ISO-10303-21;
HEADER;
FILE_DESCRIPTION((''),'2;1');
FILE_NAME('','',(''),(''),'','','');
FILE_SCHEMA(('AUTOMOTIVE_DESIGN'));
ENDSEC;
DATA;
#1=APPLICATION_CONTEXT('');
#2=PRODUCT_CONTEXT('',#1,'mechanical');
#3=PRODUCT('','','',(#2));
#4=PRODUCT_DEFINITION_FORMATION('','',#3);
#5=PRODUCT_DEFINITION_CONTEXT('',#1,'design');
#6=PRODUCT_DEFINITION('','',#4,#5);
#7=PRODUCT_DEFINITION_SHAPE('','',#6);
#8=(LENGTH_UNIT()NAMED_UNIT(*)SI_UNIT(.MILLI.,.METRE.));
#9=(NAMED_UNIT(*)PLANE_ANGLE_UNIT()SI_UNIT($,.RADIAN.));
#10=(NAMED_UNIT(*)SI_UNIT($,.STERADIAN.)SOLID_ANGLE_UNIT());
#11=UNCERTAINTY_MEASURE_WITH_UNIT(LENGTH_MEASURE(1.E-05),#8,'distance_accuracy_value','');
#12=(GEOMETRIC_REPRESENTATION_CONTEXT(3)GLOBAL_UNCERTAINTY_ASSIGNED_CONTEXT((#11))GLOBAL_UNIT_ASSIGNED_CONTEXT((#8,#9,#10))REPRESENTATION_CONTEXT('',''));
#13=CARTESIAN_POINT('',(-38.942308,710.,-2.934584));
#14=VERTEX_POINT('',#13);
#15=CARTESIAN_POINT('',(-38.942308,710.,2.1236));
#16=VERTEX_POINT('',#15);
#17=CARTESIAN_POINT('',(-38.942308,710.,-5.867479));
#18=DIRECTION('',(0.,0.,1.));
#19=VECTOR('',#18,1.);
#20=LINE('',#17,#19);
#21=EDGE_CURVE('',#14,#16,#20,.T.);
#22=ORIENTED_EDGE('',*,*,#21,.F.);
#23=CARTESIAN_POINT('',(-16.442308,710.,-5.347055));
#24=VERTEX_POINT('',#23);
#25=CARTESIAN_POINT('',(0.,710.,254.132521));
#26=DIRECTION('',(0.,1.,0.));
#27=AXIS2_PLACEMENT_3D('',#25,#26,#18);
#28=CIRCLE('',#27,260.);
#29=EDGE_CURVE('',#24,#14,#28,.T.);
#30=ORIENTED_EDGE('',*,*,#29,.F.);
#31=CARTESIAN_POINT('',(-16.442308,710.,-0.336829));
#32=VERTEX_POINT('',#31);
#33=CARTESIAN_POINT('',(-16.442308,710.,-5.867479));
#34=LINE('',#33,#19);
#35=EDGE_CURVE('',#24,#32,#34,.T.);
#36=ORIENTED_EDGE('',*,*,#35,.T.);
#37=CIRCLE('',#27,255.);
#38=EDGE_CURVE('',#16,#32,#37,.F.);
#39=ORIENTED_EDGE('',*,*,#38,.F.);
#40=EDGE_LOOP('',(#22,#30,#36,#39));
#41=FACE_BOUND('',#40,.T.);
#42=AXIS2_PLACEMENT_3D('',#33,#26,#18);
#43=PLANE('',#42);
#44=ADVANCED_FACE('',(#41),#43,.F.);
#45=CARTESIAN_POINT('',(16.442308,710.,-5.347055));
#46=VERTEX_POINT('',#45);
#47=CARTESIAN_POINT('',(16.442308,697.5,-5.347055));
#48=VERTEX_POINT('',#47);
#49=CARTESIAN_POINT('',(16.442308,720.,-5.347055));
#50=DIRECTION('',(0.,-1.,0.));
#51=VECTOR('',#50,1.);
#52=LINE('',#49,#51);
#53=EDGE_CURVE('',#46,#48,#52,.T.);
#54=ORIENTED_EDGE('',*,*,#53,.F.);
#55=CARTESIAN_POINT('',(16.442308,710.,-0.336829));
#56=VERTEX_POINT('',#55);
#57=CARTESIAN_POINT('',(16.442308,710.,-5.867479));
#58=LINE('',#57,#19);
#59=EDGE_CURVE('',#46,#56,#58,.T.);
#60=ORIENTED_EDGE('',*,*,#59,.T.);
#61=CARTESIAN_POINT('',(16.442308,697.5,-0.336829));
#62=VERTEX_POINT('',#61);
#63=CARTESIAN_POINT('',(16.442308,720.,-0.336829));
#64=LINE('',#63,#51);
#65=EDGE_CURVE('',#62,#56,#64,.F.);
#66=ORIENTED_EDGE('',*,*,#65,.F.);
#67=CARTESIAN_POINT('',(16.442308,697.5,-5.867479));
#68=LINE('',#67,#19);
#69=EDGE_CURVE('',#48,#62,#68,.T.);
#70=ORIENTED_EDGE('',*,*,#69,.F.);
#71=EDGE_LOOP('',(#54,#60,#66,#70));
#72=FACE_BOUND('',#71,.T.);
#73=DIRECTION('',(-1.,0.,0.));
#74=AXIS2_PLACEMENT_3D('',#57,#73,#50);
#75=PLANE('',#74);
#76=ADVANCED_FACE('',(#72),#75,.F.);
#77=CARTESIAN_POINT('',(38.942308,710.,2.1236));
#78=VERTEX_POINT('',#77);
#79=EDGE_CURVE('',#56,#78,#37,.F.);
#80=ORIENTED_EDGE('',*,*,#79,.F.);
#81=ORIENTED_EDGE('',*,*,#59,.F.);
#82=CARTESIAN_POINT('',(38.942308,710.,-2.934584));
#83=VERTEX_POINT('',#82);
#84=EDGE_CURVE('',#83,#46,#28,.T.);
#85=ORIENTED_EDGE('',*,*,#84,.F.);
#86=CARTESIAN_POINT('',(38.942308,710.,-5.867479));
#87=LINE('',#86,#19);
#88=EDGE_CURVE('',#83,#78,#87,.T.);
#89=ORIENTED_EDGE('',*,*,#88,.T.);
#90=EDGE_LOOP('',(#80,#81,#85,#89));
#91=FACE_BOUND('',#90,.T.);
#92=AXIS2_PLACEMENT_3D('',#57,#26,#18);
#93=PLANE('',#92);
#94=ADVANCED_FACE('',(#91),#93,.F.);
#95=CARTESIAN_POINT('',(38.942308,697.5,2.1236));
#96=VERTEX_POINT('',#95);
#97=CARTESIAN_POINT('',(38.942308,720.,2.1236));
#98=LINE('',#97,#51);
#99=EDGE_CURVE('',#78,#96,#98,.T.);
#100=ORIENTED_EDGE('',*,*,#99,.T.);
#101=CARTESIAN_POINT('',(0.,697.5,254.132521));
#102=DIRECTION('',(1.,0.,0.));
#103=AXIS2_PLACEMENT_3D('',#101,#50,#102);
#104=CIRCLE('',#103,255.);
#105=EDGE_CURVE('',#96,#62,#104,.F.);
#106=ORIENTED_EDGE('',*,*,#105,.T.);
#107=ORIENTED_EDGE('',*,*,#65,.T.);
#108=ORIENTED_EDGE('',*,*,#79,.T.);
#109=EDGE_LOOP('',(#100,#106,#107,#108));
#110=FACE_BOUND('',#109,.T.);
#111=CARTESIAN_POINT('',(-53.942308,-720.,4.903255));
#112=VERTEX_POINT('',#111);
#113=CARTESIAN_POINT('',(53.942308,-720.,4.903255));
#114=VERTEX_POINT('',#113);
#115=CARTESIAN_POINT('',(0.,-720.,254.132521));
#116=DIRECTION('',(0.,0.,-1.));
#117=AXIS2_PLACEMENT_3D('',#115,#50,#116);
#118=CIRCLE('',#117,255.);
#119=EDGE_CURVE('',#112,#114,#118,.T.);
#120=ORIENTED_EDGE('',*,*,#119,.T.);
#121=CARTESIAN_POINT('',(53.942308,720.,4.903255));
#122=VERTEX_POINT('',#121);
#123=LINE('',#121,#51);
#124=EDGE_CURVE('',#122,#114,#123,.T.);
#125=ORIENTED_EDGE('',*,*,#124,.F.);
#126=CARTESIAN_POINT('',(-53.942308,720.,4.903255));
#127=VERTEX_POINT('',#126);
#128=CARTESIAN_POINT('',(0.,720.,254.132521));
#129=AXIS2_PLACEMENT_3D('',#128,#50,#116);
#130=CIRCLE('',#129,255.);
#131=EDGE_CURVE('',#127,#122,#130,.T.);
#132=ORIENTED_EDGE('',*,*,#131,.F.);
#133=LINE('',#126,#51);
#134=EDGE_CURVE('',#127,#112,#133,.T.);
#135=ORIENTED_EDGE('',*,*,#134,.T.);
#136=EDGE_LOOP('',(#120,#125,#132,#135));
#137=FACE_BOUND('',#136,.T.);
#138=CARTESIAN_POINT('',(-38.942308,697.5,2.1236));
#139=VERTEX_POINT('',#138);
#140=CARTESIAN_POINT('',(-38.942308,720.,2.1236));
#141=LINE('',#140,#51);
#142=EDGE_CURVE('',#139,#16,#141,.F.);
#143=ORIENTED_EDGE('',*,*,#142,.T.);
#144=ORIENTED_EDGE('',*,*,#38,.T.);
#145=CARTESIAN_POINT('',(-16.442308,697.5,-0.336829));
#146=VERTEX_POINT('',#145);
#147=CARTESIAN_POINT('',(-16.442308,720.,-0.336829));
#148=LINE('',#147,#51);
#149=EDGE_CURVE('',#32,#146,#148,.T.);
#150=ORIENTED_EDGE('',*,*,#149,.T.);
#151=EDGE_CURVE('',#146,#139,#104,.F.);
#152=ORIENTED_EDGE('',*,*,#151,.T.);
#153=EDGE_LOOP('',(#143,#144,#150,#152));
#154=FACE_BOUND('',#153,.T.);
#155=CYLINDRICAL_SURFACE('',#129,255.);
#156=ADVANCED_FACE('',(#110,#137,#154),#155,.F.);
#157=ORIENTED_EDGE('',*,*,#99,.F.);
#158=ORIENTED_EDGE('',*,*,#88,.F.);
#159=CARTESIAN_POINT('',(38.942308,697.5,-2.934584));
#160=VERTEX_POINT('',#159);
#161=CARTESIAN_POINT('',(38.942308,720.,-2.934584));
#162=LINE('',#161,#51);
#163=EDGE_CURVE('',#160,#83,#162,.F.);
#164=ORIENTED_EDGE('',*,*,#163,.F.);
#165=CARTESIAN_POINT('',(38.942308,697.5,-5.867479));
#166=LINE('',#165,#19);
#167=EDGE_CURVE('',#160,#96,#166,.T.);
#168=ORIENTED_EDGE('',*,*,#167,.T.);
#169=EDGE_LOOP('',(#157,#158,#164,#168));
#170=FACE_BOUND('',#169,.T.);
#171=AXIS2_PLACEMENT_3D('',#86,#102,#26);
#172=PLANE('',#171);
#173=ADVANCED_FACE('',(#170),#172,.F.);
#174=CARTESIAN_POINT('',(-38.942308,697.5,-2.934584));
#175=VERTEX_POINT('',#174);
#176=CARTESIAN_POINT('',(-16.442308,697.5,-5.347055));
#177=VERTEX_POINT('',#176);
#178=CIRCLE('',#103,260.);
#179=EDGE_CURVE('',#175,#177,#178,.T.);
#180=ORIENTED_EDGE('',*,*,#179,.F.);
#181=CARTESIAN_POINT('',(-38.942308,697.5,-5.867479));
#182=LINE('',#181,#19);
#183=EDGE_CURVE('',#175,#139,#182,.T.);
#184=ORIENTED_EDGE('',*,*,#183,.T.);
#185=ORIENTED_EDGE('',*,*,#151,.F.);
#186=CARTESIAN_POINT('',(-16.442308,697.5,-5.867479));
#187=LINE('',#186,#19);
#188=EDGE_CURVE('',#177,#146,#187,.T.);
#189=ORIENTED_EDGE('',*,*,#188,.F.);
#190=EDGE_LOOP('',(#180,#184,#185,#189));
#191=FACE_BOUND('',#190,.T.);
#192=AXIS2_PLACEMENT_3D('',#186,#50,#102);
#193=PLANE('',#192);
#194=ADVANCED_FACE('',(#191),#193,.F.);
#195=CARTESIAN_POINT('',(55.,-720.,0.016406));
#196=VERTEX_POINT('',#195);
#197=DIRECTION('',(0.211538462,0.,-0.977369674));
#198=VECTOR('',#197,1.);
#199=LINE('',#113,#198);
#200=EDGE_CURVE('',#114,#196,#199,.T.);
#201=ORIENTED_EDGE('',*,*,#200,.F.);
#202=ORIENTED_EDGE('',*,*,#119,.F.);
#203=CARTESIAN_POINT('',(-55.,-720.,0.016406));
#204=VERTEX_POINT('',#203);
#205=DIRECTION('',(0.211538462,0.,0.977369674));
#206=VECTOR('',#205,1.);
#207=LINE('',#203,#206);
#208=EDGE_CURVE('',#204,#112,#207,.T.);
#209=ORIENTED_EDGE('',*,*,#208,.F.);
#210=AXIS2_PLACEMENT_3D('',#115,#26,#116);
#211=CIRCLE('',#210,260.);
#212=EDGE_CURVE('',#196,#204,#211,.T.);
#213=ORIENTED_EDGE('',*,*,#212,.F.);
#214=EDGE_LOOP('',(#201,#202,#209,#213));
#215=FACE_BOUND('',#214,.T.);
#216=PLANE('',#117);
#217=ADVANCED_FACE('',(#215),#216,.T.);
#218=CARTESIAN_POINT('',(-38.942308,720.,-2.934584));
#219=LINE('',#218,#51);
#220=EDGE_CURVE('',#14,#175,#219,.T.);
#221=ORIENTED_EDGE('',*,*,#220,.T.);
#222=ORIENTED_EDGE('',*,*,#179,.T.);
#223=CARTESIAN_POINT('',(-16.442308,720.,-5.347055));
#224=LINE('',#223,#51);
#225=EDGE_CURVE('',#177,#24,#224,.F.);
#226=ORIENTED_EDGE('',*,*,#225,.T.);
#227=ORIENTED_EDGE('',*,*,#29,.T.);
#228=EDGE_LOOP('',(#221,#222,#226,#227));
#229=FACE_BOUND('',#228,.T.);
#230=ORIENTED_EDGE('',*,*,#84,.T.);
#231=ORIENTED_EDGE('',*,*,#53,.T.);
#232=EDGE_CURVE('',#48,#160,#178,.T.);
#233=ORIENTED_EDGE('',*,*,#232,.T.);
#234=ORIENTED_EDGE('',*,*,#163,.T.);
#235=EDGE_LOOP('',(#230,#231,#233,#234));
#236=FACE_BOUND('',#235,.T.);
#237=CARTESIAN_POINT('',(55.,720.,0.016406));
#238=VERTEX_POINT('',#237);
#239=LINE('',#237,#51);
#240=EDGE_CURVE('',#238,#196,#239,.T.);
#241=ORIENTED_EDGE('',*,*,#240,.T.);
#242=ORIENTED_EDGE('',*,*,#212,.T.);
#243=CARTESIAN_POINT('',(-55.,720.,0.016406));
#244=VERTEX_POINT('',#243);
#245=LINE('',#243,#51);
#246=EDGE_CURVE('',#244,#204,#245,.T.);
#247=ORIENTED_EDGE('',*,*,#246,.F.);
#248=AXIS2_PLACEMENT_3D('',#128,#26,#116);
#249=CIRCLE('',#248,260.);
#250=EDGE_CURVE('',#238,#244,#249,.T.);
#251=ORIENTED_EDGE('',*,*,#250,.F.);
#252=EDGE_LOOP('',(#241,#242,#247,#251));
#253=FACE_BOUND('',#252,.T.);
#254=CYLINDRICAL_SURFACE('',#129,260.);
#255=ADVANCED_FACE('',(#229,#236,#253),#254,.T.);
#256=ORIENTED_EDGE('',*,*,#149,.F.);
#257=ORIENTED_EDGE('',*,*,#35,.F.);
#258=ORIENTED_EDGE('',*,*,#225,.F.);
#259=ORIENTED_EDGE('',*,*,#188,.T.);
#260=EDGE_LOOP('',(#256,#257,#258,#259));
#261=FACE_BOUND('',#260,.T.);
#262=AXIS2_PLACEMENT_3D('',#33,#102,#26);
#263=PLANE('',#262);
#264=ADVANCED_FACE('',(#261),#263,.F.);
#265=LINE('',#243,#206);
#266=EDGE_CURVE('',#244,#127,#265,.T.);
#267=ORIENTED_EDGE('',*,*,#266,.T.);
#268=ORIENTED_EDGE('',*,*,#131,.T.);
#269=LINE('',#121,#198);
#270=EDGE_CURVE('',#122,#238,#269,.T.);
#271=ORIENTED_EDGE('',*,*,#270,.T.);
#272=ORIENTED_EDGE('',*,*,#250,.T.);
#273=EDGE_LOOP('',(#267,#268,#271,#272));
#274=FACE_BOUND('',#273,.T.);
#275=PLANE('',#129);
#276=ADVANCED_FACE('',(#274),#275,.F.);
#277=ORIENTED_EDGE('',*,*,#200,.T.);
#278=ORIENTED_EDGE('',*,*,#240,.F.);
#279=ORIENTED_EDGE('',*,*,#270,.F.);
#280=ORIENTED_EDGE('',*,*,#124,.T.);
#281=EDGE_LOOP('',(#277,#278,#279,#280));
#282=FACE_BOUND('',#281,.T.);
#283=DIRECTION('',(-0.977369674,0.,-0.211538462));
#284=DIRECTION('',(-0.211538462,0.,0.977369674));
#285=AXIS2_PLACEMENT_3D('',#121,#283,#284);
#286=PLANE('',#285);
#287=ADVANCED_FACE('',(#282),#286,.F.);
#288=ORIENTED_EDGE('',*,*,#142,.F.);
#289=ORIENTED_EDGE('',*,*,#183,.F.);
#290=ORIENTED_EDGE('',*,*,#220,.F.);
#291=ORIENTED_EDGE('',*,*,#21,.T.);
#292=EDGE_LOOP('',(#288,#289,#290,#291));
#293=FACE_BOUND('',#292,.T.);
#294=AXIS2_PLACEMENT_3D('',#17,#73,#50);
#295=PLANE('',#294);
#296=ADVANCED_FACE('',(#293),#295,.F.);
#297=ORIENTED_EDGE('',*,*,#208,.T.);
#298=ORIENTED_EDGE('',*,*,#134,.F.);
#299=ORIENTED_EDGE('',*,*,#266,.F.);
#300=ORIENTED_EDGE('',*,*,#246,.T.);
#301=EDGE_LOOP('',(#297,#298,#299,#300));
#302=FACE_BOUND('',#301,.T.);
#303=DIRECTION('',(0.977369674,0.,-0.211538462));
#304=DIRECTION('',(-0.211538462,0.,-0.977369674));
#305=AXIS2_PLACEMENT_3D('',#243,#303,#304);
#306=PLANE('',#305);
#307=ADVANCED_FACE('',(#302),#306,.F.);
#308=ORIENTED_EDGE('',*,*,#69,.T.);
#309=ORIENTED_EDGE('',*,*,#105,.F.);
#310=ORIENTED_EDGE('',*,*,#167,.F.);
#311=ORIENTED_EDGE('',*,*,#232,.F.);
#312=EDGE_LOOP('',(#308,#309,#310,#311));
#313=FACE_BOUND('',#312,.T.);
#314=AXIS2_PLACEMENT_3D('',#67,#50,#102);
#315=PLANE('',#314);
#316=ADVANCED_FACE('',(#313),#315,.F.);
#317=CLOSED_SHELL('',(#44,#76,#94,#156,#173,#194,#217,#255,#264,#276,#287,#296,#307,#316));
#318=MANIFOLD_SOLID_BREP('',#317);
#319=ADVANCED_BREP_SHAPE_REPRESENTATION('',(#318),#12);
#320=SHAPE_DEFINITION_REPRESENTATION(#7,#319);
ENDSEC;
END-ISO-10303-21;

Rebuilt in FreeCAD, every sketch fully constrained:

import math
import FreeCAD as App
import Part
import Sketcher

V = App.Vector
Q = App.Units.Quantity


def add_polygon(sketch, points):
    """Adds a closed chain of lines whose ends are joined by coincident constraints."""
    first, n = sketch.GeometryCount, len(points)
    for a, b in zip(points, points[1:] + points[:1]):
        sketch.addGeometry(Part.LineSegment(App.Vector(*a, 0), App.Vector(*b, 0)), False)
    for i in range(n):
        sketch.addConstraint(Sketcher.Constraint("Coincident", first + i, 2, first + (i + 1) % n, 1))

doc = App.newDocument("Part")
params = doc.addObject("Spreadsheet::Sheet", "Params")
for row, (alias, value) in enumerate([
    ("sketch1_radius", "255 mm"),
    ("sketch1_radius2", "260 mm"),
    ("pad1_length", "1440 mm"),
    ("sketch2_width", "22.5 mm"),
    ("sketch2_height", "12.5 mm"),
], start=1):
    params.set(f"A{row}", alias)
    params.set(f"B{row}", "=" + value)
    params.setAlias(f"B{row}", alias)

body = doc.addObject("PartDesign::Body", "Body")

# Sketch on XZ plane
sketch1 = body.newObject("Sketcher::SketchObject", "Sketch")
sketch1.AttachmentSupport = (doc.getObject("XZ_Plane"), [""])
sketch1.MapMode = "FlatFace"
sketch1.addGeometry(Part.LineSegment(V(-55, 0, 0), V(-54, 5, 0)), False)
sketch1.addGeometry(Part.ArcOfCircle(Part.Circle(V(0, 254, 0), V(0, 0, 1), 255), math.radians(-102), math.radians(-78)), False)
sketch1.addGeometry(Part.LineSegment(V(54, 5, 0), V(55, 0, 0)), False)
sketch1.addGeometry(Part.ArcOfCircle(Part.Circle(V(0, 254, 0), V(0, 0, 1), 260), math.radians(-102), math.radians(-78)), False)
sketch1.addConstraint(Sketcher.Constraint("Coincident", 0, 2, 1, 1))
sketch1.addConstraint(Sketcher.Constraint("Coincident", 1, 2, 2, 1))
sketch1.addConstraint(Sketcher.Constraint("Coincident", 2, 2, 3, 2))
sketch1.addConstraint(Sketcher.Constraint("Coincident", 3, 1, 0, 1))
sketch1.addConstraint(Sketcher.Constraint("Coincident", 3, 3, 1, 3))
sketch1.addConstraint(Sketcher.Constraint("Symmetric", 0, 2, 1, 2, -2))
sketch1.addConstraint(Sketcher.Constraint("Horizontal", 2, 2, 3, 1))
sketch1.addConstraint(Sketcher.Constraint("Radius", 1, Q("255 mm")))
sketch1.addConstraint(Sketcher.Constraint("Radius", 3, Q("260 mm")))
sketch1.addConstraint(Sketcher.Constraint("DistanceX", -1, 1, 2, 2, Q("55 mm")))
sketch1.addConstraint(Sketcher.Constraint("DistanceY", -1, 1, 1, 3, Q("254.132521 mm")))
sketch1.addConstraint(Sketcher.Constraint("DistanceY", 2, 2, 1, 2, Q("4.886848 mm")))
sketch1.setExpression("Constraints[7]", "Params.sketch1_radius")
sketch1.setExpression("Constraints[8]", "Params.sketch1_radius2")
pad1 = body.newObject("PartDesign::Pad", "Pad")
pad1.Profile = sketch1
pad1.setExpression("Length", "Params.pad1_length")
pad1.Midplane = True

# Sketch on XY plane
sketch2 = body.newObject("Sketcher::SketchObject", "Sketch001")
sketch2.AttachmentSupport = (doc.getObject("XY_Plane"), [""])
sketch2.MapMode = "FlatFace"
add_polygon(sketch2, [(-39, 710), (-39, 698), (-16, 698), (-16, 710)])  # lines 0-3
add_polygon(sketch2, [(16, 710), (16, 698), (39, 698), (39, 710)])  # lines 4-7
sketch2.addConstraint(Sketcher.Constraint("Vertical", 0))
sketch2.addConstraint(Sketcher.Constraint("Horizontal", 1))
sketch2.addConstraint(Sketcher.Constraint("Vertical", 2))
sketch2.addConstraint(Sketcher.Constraint("Horizontal", 3))
sketch2.addConstraint(Sketcher.Constraint("Vertical", 4))
sketch2.addConstraint(Sketcher.Constraint("Horizontal", 5))
sketch2.addConstraint(Sketcher.Constraint("Vertical", 6))
sketch2.addConstraint(Sketcher.Constraint("Horizontal", 7))
sketch2.addConstraint(Sketcher.Constraint("Symmetric", 1, 2, 4, 2, -2))
sketch2.addConstraint(Sketcher.Constraint("Symmetric", 3, 2, 6, 2, -2))
sketch2.addConstraint(Sketcher.Constraint("DistanceX", 1, 1, 1, 2, Q("22.5 mm")))
sketch2.addConstraint(Sketcher.Constraint("DistanceY", 0, 2, 0, 1, Q("12.5 mm")))
sketch2.addConstraint(Sketcher.Constraint("DistanceY", -1, 1, 2, 2, Q("710 mm")))
sketch2.addConstraint(Sketcher.Constraint("DistanceX", 0, 2, -1, 1, Q("38.942308 mm")))
sketch2.setExpression("Constraints[18]", "Params.sketch2_width")
sketch2.setExpression("Constraints[19]", "Params.sketch2_height")
pocket1 = body.newObject("PartDesign::Pocket", "Pocket")
pocket1.Profile = sketch2
pocket1.Type = "ThroughAll"
pocket1.Midplane = True

doc.recompute()
